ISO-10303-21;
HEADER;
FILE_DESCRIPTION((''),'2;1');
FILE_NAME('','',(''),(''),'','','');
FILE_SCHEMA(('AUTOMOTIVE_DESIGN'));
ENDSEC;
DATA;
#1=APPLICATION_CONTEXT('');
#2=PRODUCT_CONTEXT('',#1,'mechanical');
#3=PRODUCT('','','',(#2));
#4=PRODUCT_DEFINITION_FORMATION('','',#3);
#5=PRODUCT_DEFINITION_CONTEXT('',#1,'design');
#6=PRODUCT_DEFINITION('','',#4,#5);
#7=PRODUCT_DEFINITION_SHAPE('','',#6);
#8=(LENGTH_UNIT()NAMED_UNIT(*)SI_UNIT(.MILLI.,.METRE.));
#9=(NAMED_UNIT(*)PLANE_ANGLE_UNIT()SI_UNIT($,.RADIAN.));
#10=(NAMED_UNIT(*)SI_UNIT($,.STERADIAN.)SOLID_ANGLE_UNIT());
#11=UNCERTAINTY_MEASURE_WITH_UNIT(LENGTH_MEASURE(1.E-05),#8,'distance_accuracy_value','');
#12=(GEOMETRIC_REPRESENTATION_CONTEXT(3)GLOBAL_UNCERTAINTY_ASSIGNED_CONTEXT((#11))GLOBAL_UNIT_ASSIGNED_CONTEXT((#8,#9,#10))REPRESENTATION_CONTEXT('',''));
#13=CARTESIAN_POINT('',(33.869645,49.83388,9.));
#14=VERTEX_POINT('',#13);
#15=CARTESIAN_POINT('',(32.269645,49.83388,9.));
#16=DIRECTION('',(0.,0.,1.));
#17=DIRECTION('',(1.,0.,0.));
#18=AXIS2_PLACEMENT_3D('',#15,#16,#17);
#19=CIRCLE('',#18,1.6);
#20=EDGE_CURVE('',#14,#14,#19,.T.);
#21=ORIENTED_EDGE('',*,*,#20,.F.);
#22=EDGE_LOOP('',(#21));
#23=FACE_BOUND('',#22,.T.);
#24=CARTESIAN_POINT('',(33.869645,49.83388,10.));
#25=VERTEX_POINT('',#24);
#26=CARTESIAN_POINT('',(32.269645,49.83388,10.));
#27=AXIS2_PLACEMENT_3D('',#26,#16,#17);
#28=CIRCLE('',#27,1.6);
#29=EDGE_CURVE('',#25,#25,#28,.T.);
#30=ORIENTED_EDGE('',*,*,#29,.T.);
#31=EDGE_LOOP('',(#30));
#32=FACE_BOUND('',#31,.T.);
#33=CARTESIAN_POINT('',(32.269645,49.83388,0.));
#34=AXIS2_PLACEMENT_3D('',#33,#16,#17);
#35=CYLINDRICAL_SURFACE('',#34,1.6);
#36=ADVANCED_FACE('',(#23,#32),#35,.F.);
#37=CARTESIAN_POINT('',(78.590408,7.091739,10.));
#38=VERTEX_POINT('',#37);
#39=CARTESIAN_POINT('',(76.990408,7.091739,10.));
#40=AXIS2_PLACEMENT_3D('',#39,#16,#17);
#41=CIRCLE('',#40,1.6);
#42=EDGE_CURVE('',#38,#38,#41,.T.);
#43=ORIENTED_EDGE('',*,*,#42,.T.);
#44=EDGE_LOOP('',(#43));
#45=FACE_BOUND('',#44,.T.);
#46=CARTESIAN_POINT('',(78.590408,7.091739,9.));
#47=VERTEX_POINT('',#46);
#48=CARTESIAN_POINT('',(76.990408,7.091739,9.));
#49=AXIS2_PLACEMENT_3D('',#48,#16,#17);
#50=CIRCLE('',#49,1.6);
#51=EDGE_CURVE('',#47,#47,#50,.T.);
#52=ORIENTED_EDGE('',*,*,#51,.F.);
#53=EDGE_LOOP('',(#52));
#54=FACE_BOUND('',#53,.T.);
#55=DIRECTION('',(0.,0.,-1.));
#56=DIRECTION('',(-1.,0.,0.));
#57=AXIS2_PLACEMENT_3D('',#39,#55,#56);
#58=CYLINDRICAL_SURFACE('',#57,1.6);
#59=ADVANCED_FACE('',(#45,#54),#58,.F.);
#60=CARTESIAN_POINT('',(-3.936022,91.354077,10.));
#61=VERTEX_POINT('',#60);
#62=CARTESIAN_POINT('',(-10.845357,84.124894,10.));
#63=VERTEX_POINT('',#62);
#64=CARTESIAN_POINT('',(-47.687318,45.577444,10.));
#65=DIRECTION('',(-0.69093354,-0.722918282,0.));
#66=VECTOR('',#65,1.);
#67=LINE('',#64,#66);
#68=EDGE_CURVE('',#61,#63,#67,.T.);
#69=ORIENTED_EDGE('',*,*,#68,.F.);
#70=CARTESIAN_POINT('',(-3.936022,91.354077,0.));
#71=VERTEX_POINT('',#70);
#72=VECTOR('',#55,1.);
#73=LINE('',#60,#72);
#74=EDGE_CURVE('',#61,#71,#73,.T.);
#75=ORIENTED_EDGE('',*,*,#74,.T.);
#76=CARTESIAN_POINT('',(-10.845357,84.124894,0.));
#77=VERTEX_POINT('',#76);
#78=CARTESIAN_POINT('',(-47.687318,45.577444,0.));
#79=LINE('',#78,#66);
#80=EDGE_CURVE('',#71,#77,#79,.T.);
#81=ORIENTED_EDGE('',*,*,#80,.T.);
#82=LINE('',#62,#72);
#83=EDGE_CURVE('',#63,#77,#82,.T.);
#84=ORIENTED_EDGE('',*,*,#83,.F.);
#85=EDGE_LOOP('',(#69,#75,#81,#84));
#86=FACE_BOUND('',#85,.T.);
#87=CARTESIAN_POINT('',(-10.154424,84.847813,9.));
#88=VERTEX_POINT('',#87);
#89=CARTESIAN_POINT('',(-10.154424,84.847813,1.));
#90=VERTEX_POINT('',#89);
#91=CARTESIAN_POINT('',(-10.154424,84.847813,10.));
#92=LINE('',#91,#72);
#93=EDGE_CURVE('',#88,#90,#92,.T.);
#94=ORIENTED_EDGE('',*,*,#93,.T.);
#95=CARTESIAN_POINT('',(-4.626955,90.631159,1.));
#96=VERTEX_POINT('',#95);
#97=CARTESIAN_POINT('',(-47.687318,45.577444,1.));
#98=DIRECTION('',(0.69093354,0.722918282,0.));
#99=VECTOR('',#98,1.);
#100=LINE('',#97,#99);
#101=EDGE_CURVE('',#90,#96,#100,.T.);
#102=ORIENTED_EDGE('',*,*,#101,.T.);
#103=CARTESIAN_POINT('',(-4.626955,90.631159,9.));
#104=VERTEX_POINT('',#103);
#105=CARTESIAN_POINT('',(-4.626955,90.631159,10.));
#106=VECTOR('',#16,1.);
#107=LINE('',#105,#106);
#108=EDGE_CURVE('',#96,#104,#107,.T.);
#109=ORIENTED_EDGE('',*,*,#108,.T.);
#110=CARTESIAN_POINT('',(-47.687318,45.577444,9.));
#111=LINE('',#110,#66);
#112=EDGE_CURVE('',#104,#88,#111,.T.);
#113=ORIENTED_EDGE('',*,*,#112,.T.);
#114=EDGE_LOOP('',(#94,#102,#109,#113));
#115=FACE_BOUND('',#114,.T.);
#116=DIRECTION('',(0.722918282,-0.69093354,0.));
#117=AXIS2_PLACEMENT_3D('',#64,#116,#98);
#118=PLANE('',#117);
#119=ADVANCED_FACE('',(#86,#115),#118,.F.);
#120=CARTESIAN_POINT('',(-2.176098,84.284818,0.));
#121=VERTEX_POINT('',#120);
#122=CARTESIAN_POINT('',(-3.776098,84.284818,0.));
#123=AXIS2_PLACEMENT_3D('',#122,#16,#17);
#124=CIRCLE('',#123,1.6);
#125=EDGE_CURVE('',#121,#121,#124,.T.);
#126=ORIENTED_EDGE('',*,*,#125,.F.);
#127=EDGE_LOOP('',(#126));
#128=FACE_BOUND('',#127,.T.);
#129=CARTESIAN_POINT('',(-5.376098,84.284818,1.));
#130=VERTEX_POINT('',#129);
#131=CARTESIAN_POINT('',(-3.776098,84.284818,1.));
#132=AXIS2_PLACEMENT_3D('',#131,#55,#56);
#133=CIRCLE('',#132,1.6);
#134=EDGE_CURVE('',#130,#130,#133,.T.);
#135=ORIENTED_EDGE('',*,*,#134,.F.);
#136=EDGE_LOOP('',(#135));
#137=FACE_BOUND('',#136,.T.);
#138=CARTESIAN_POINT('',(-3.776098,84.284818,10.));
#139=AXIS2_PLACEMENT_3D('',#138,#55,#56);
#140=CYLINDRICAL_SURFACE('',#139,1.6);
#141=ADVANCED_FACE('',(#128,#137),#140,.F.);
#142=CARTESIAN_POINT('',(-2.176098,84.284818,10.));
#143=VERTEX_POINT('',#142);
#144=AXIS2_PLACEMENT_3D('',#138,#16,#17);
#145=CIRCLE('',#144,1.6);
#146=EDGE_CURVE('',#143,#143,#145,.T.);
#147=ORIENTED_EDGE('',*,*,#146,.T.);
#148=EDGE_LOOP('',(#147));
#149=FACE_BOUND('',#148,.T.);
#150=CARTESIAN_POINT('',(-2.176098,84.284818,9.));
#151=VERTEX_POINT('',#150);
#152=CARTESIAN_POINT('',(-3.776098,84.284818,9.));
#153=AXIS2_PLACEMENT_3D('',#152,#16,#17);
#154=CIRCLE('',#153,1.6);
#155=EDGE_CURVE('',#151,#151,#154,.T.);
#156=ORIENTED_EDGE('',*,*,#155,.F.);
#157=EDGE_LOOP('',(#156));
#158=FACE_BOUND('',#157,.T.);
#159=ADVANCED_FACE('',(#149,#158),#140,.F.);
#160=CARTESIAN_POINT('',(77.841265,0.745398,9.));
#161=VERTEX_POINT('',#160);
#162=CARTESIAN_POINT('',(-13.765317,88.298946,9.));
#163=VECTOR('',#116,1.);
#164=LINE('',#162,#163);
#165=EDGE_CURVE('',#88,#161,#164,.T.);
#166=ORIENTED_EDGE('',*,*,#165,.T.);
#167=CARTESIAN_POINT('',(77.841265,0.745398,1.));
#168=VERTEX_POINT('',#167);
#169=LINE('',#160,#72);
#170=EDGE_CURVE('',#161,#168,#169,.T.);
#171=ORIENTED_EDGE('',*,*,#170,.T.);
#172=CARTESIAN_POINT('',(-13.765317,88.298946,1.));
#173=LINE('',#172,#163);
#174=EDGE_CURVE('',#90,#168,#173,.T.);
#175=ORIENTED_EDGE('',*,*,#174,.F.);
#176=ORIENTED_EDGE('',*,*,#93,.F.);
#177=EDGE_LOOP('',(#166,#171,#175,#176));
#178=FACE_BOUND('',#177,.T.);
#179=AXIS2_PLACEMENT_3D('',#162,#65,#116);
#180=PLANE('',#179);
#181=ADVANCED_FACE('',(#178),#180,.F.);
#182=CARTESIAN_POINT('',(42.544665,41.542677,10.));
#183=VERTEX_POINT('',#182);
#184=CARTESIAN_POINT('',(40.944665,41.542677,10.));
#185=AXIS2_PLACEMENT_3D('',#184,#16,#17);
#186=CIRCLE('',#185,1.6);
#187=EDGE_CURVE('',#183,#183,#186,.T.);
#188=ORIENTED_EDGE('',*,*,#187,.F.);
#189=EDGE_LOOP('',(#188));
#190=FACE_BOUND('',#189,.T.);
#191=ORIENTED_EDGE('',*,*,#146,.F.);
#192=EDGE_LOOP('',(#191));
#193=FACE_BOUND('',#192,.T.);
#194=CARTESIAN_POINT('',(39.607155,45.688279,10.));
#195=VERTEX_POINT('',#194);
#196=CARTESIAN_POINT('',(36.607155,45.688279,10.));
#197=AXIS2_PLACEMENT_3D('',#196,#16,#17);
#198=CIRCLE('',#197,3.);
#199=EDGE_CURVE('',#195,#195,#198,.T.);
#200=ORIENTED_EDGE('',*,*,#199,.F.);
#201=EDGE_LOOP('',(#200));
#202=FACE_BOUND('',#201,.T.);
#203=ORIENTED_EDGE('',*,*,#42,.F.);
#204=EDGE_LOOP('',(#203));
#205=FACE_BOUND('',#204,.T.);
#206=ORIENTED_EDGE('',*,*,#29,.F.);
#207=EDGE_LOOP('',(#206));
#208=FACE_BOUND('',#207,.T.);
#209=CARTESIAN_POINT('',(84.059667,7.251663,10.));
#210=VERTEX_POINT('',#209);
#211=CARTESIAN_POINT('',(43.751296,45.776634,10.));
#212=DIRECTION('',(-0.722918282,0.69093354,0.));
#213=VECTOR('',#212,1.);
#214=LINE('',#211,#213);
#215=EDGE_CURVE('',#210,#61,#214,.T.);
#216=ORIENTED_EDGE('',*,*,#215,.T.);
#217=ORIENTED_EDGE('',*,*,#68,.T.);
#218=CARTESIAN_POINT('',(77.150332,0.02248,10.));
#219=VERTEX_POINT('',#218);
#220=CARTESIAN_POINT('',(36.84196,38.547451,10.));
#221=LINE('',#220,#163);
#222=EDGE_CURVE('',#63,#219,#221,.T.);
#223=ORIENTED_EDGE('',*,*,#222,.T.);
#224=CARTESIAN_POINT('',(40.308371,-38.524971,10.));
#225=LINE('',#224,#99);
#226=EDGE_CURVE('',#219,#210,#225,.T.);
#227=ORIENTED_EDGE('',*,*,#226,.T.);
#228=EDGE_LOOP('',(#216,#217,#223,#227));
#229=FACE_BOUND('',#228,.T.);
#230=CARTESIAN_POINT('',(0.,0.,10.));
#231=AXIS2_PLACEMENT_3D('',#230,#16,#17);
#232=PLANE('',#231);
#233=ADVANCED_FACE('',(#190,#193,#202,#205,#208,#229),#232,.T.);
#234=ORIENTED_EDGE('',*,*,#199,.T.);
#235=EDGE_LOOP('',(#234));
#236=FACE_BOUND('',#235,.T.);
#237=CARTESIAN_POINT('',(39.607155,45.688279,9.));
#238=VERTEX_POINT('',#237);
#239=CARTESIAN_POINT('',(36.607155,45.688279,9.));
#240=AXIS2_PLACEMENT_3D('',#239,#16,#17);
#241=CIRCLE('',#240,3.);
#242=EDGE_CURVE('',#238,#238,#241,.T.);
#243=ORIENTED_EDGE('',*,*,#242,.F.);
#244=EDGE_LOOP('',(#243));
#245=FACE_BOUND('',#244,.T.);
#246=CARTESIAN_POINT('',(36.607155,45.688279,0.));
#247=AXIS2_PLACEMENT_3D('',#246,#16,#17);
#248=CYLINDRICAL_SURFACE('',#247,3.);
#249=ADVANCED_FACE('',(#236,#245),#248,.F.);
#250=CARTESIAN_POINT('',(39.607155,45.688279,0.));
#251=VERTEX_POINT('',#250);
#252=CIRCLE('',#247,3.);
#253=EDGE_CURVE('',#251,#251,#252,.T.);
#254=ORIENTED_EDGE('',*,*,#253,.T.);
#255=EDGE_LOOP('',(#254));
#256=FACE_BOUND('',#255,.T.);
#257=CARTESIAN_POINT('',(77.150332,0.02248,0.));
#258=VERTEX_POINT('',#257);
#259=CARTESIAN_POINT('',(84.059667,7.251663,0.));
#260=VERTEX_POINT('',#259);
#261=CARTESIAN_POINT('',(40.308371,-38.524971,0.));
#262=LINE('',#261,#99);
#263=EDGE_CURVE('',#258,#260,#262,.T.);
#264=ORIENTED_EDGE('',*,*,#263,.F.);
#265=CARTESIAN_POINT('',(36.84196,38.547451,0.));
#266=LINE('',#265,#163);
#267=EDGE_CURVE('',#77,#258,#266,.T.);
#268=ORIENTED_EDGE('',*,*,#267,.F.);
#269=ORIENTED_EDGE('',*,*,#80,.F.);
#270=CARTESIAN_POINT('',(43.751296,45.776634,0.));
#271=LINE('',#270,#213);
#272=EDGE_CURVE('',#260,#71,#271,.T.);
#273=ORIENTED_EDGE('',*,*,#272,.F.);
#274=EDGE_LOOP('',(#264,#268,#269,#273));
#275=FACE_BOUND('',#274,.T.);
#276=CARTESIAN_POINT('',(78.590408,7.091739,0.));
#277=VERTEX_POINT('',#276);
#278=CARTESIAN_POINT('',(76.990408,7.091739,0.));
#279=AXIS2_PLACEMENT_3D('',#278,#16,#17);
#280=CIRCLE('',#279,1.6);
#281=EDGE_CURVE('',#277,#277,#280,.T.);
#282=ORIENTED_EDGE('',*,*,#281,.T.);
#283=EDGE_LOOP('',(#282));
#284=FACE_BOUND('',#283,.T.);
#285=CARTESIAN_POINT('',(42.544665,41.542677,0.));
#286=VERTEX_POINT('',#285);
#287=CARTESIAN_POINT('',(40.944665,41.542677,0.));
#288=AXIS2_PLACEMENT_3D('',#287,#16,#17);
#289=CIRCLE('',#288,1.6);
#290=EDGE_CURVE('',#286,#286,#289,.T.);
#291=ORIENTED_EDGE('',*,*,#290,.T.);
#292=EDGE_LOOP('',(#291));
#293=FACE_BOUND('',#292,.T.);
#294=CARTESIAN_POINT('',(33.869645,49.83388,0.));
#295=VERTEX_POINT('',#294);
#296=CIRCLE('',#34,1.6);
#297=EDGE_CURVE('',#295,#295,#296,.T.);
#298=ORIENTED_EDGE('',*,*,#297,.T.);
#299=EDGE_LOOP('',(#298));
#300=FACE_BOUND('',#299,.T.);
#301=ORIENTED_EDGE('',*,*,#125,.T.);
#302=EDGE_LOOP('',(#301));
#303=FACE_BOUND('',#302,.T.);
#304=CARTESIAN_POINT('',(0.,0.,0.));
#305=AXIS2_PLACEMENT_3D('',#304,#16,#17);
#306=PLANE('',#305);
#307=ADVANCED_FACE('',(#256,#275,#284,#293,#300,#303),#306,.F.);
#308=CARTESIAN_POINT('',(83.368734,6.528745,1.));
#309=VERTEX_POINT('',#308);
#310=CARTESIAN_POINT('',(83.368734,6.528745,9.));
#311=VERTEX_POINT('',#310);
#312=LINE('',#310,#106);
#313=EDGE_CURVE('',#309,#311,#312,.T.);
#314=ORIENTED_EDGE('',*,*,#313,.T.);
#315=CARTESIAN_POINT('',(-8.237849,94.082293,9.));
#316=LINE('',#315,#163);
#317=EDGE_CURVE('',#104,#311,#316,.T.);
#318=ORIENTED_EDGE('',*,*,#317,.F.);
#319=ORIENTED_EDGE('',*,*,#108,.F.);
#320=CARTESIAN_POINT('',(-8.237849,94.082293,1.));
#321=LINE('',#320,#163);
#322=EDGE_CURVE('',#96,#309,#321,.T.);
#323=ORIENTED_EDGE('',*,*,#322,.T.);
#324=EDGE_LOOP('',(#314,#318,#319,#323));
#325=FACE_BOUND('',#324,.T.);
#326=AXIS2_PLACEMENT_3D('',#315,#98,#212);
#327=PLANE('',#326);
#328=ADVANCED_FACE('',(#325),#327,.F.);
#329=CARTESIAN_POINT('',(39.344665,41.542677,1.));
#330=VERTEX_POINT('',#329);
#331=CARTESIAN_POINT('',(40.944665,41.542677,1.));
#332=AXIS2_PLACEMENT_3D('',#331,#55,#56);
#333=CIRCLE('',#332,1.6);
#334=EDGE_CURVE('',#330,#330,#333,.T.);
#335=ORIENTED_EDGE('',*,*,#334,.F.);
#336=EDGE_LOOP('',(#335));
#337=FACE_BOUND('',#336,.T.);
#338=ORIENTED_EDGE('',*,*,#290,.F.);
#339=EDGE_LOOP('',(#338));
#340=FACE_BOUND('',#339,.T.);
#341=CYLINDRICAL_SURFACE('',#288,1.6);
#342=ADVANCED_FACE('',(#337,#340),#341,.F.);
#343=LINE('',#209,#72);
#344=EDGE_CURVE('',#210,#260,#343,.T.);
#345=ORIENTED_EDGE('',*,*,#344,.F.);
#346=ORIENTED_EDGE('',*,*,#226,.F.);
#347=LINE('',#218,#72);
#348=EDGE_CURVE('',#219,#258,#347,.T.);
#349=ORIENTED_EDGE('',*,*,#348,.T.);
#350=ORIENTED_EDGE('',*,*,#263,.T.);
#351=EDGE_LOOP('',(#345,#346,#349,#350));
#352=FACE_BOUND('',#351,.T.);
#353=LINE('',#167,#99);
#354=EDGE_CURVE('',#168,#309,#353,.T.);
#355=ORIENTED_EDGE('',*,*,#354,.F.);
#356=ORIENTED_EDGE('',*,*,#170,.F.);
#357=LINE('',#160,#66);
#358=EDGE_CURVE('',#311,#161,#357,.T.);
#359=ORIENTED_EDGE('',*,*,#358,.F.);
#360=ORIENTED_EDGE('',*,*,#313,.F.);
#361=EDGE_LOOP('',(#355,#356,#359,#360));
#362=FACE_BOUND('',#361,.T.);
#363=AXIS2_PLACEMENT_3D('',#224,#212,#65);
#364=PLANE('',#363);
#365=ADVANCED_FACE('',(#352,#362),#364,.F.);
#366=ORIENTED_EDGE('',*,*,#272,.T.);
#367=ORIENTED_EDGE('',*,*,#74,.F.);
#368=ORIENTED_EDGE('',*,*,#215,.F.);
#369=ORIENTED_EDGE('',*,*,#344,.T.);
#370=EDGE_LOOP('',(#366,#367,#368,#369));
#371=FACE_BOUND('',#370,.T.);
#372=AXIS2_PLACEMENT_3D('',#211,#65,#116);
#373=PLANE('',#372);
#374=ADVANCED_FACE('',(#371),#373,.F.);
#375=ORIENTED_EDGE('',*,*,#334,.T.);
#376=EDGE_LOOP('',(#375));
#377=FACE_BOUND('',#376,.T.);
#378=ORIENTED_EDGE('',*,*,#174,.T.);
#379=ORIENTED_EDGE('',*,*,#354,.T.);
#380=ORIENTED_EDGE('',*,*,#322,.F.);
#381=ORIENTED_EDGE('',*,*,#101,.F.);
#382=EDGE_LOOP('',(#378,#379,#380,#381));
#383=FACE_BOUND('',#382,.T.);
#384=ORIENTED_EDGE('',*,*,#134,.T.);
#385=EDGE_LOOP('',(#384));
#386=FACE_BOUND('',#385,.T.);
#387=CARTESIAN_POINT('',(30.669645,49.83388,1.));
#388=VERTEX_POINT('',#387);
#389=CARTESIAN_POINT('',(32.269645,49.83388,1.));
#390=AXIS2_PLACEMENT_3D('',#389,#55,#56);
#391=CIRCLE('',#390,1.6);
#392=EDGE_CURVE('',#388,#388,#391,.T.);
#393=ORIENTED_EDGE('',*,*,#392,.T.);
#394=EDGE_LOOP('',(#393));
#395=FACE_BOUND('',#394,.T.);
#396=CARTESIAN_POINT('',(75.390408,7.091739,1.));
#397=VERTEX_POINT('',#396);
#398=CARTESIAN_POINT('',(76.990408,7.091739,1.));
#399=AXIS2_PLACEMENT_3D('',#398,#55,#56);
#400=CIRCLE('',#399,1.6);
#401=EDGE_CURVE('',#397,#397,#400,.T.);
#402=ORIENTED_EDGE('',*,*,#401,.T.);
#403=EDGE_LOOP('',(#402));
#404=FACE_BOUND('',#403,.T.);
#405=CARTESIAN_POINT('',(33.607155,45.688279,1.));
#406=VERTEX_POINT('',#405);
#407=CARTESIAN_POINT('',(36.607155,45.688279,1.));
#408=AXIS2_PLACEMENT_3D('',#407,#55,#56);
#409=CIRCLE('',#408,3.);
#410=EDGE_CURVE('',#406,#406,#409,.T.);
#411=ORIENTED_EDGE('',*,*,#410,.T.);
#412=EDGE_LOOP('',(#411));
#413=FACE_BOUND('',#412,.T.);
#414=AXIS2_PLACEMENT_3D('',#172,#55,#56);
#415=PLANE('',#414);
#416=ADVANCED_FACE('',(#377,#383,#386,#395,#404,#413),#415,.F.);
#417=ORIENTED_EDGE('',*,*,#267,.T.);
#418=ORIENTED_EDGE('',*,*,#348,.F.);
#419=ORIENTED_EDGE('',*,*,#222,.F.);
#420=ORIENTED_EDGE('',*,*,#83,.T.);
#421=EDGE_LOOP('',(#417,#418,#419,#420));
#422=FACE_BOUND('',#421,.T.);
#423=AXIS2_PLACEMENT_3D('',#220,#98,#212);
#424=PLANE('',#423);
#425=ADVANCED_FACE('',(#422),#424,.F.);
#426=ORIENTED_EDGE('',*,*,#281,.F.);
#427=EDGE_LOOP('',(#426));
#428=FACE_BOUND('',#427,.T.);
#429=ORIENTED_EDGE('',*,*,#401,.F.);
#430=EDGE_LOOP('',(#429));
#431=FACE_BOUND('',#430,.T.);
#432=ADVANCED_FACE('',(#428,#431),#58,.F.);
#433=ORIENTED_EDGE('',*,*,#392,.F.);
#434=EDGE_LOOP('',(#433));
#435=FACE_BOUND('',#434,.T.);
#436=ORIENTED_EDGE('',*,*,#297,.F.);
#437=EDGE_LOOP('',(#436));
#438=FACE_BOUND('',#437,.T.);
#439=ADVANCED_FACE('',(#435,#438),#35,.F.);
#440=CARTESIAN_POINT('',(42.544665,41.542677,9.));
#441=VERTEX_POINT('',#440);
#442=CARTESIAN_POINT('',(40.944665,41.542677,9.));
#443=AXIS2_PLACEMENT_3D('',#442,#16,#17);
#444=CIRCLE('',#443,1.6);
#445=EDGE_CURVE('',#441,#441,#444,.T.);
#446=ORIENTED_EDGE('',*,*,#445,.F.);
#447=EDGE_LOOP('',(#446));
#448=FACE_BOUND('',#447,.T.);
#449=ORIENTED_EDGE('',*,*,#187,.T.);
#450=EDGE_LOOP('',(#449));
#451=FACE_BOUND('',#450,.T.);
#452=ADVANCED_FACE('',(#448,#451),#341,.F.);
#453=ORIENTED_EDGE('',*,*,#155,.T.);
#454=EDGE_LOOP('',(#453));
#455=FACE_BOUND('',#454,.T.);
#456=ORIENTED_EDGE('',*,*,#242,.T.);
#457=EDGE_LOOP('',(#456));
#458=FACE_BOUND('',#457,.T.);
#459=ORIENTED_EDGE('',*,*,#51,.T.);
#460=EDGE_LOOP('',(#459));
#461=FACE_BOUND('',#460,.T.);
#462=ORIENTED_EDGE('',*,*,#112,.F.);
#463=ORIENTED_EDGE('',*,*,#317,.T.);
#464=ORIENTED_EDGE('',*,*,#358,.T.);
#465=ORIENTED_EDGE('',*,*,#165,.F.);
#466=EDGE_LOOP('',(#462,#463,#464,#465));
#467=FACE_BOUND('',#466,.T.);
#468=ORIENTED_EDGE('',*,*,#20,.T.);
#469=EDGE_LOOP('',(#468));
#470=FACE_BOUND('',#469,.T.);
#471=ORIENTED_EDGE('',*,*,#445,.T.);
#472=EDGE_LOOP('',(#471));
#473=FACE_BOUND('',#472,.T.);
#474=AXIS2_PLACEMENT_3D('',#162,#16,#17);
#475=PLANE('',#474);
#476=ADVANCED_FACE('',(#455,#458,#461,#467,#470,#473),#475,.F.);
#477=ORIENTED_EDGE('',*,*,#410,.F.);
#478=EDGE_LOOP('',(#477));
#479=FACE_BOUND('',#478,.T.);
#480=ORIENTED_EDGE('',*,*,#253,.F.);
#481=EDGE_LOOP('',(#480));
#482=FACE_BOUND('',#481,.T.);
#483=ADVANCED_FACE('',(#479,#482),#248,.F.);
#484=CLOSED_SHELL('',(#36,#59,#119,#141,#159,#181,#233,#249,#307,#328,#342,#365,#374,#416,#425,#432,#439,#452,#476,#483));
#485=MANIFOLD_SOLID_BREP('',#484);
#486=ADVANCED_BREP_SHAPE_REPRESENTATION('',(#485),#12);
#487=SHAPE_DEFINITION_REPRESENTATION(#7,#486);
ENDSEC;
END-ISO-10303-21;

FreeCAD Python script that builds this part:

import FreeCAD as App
import Part
import Sketcher

V = App.Vector


def add_polygon(sketch, points):
    """Adds a closed chain of lines whose ends are joined by coincident constraints."""
    first, n = sketch.GeometryCount, len(points)
    for a, b in zip(points, points[1:] + points[:1]):
        sketch.addGeometry(Part.LineSegment(App.Vector(*a, 0), App.Vector(*b, 0)), False)
    for i in range(n):
        sketch.addConstraint(Sketcher.Constraint("Coincident", first + i, 2, first + (i + 1) % n, 1))

doc = App.newDocument("Part")
body = doc.addObject("PartDesign::Body", "Body")

sketch1 = body.newObject("Sketcher::SketchObject", "Sketch")
sketch1.AttachmentSupport = (doc.getObject("XY_Plane"), [""])
sketch1.MapMode = "FlatFace"
add_polygon(sketch1, [(83.071643, 8.195973), (-3.936022, 91.354077), (-10.845357, 84.124894), (77.150332, 0.02248), (84.059667, 7.251663)])
sketch1.addGeometry(Part.Circle(V(76.990408, 7.091739, 0), V(0, 0, 1), 1.6), False)
sketch1.addGeometry(Part.Circle(V(-3.776098, 84.284818, 0), V(0, 0, 1), 1.6), False)
sketch1.addConstraint([
    Sketcher.Constraint("Equal", 5, 6),
    Sketcher.Constraint("Perpendicular", 0, 1),
    Sketcher.Constraint("Perpendicular", 1, 2),
    Sketcher.Constraint("Perpendicular", 2, 3),
    Sketcher.Constraint("Perpendicular", 3, 4),
    Sketcher.Constraint("Diameter", 5, 3.2),
    Sketcher.Constraint("Distance", 1, 10.0),
    Sketcher.Constraint("DistanceX", 6, 3, -1, 1, 3.776098),
    Sketcher.Constraint("Distance", 2, 121.722871),
    Sketcher.Constraint("DistanceX", -1, 1, 5, 3, 76.990408),
    Sketcher.Constraint("DistanceY", -1, 1, 5, 3, 7.091739),
    Sketcher.Constraint("DistanceY", -1, 1, 6, 3, 84.284818),
    Sketcher.Constraint("DistanceX", 0, 2, -1, 1, 3.936022),
    Sketcher.Constraint("DistanceX", -1, 1, 2, 2, 77.150332),
    Sketcher.Constraint("DistanceY", -1, 1, 2, 2, 0.02248),
    Sketcher.Constraint("DistanceY", 3, 2, 4, 2, 0.94431),
])
pad1 = body.newObject("PartDesign::Pad", "Pad")
pad1.Profile = sketch1
pad1.Length = 10

sketch2 = body.newObject("Sketcher::SketchObject", "Sketch001")
sketch2.Placement = App.Placement(V(40.308371, -38.524971, 0), App.Rotation(V(0, 0, -1), V(0.69093354, 0.722918282, 0), V(0.722918282, -0.69093354, 0), "ZXY"))
add_polygon(sketch2, [(-9, 62.322003), (-9, 54.322003), (-1, 54.322003), (-1, 62.322003)])
sketch2.addConstraint([
    Sketcher.Constraint("Vertical", 0),
    Sketcher.Constraint("Horizontal", 1),
    Sketcher.Constraint("Vertical", 2),
    Sketcher.Constraint("Horizontal", 3),
    Sketcher.Constraint("Equal", 3, 0),
    Sketcher.Constraint("DistanceX", 1, 1, 1, 2, 8.0),
    Sketcher.Constraint("DistanceX", 0, 2, -1, 1, 9.0),
    Sketcher.Constraint("DistanceY", -1, 1, 0, 2, 54.322003),
])
pocket1 = body.newObject("PartDesign::Pocket", "Pocket")
pocket1.Profile = sketch2
pocket1.Type = "ThroughAll"

sketch3 = body.newObject("Sketcher::SketchObject", "Sketch002")
sketch3.AttachmentSupport = (doc.getObject("XY_Plane"), [""])
sketch3.MapMode = "FlatFace"
sketch3.AttachmentOffset = App.Placement(V(0, 0, 10), App.Rotation())
sketch3.addGeometry([
    Part.Circle(V(40.944665, 41.542677, 0), V(0, 0, 1), 1.6),
    Part.Circle(V(32.269645, 49.83388, 0), V(0, 0, 1), 1.6),
    Part.Circle(V(36.607155, 45.688279, 0), V(0, 0, 1), 3),
], False)
sketch3.addConstraint([
    Sketcher.Constraint("Equal", 0, 1),
    Sketcher.Constraint("Diameter", 2, 6.0),
    Sketcher.Constraint("Diameter", 0, 3.2),
    Sketcher.Constraint("DistanceY", 2, 3, 1, 3, 4.145601),
    Sketcher.Constraint("DistanceY", 0, 3, 2, 3, 4.145601),
    Sketcher.Constraint("DistanceY", -1, 1, 1, 3, 49.83388),
    Sketcher.Constraint("DistanceX", 1, 3, 0, 3, 8.675019),
    Sketcher.Constraint("DistanceX", 1, 3, 2, 3, 4.33751),
    Sketcher.Constraint("DistanceX", -1, 1, 0, 3, 40.944665),
])
pocket2 = body.newObject("PartDesign::Pocket", "Pocket001")
pocket2.Profile = sketch3
pocket2.Length = 10

doc.recompute()
